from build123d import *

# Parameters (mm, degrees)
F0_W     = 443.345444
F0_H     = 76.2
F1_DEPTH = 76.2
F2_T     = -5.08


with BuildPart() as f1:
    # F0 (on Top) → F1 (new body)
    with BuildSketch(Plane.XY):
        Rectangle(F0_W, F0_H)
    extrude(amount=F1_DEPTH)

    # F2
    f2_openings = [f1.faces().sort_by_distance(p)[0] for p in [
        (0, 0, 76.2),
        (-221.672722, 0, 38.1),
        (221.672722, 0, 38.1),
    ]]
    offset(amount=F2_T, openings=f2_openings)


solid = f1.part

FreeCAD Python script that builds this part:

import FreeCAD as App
import Part
import Sketcher

V = App.Vector
Q = App.Units.Quantity


def faces_at(feature, points):
    """Names of the faces that lie closest to the given points."""
    faces = feature.Shape.Faces
    near = lambda p: min(range(len(faces)), key=lambda i: faces[i].distToShape(Part.Vertex(*p))[0])
    return sorted({f"Face{near(p) + 1}" for p in points})

doc = App.newDocument("Part")
body = doc.addObject("PartDesign::Body", "Body")

# Sketch on XY plane
sketch1 = doc.addObject("Sketcher::SketchObject", "Sketch")
body.addObject(sketch1)
sketch1.AttachmentSupport = (doc.XY_Plane, [""])
sketch1.MapMode = "FlatFace"
sketch1.addGeometry(Part.LineSegment(V(-222, 38, 0), V(-222, -38, 0)), False)
sketch1.addGeometry(Part.LineSegment(V(-222, -38, 0), V(222, -38, 0)), False)
sketch1.addGeometry(Part.LineSegment(V(222, -38, 0), V(222, 38, 0)), False)
sketch1.addGeometry(Part.LineSegment(V(222, 38, 0), V(-222, 38, 0)), False)
sketch1.addConstraint(Sketcher.Constraint("Coincident", 0, 2, 1, 1))
sketch1.addConstraint(Sketcher.Constraint("Coincident", 1, 2, 2, 1))
sketch1.addConstraint(Sketcher.Constraint("Coincident", 2, 2, 3, 1))
sketch1.addConstraint(Sketcher.Constraint("Coincident", 3, 2, 0, 1))
sketch1.addConstraint(Sketcher.Constraint("Vertical", 0))
sketch1.addConstraint(Sketcher.Constraint("Horizontal", 1))
sketch1.addConstraint(Sketcher.Constraint("Vertical", 2))
sketch1.addConstraint(Sketcher.Constraint("Horizontal", 3))
sketch1.addConstraint(Sketcher.Constraint("Symmetric", 0, 2, 2, 2, -1, 1))
sketch1.addConstraint(Sketcher.Constraint("DistanceY", 0, 2, 0, 1, Q("3 in")))
sketch1.addConstraint(Sketcher.Constraint("DistanceX", 1, 1, 1, 2, 443.345444))
pad1 = doc.addObject("PartDesign::Pad", "Pad")
body.addObject(pad1)
pad1.Profile = sketch1
pad1.Length = Q("3 in")
doc.recompute()

thickness = doc.addObject("PartDesign::Thickness", "Thickness")
body.addObject(thickness)
thickness.Base = (pad1, faces_at(pad1, [(0, 0, 76.2), (-221.673, 0, 38.1), (221.673, 0, 38.1)]))
thickness.Value = Q("0.2 in")
thickness.Reversed = True
thickness.Join = "Arc"

doc.recompute()
